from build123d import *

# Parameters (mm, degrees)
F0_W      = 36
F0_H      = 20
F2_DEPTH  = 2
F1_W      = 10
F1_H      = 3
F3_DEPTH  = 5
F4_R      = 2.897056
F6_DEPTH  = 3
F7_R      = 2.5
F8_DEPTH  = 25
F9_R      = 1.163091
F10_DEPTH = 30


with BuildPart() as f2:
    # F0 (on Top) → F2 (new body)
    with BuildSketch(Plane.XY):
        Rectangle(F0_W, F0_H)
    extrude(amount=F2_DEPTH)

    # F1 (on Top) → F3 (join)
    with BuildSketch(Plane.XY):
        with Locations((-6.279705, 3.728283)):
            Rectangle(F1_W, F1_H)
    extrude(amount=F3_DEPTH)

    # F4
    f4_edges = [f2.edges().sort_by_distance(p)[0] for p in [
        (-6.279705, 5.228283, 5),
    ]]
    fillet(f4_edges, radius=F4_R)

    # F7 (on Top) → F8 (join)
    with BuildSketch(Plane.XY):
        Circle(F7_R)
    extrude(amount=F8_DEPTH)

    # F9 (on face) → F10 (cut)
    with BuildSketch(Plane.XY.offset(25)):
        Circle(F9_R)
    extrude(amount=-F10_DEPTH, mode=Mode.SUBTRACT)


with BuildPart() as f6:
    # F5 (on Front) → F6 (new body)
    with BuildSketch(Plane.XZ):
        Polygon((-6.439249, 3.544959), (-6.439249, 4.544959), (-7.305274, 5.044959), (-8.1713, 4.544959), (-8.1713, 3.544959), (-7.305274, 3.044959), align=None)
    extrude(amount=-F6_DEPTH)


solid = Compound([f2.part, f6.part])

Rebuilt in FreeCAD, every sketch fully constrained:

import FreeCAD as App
import Part
import Sketcher
from FreeCAD import Vector
Q = App.Units.Quantity


def edges_at(feature, points):
    """Names of the edges that pass closest to the given points."""
    edges = feature.Shape.Edges
    near = lambda p: min(range(len(edges)), key=lambda i: edges[i].distToShape(Part.Vertex(*p))[0])
    return sorted({f"Edge{near(p) + 1}" for p in points})

doc = App.newDocument("Part")
body = doc.addObject("PartDesign::Body", "Body")

# Sketch on XY plane
sketch1 = body.newObject("Sketcher::SketchObject", "Sketch")
sketch1.AttachmentSupport = (doc.getObject("XY_Plane"), [""])
sketch1.MapMode = "FlatFace"
sketch1.addGeometry([
    Part.LineSegment(Vector(-18, 10, 0), Vector(-18, -10, 0)),
    Part.LineSegment(Vector(-18, -10, 0), Vector(18, -10, 0)),
    Part.LineSegment(Vector(18, -10, 0), Vector(18, 10, 0)),
    Part.LineSegment(Vector(18, 10, 0), Vector(-18, 10, 0)),
], False)
sketch1.addConstraint([
    Sketcher.Constraint("Coincident", 0, 2, 1, 1),
    Sketcher.Constraint("Coincident", 1, 2, 2, 1),
    Sketcher.Constraint("Coincident", 2, 2, 3, 1),
    Sketcher.Constraint("Coincident", 3, 2, 0, 1),
    Sketcher.Constraint("Vertical", 0),
    Sketcher.Constraint("Horizontal", 1),
    Sketcher.Constraint("Vertical", 2),
    Sketcher.Constraint("Horizontal", 3),
    Sketcher.Constraint("Symmetric", 0, 2, 2, 2, -1, 1),
    Sketcher.Constraint("DistanceX", 1, 1, 1, 2, Q("36 mm")),
    Sketcher.Constraint("DistanceY", 0, 2, 0, 1, Q("20 mm")),
])
pad1 = body.newObject("PartDesign::Pad", "Pad")
pad1.Profile = sketch1
pad1.Length = 2

# Sketch on XY plane
sketch2 = body.newObject("Sketcher::SketchObject", "Sketch001")
sketch2.AttachmentSupport = (doc.getObject("XY_Plane"), [""])
sketch2.MapMode = "FlatFace"
sketch2.addGeometry([
    Part.LineSegment(Vector(-11.3, 5.2, 0), Vector(-11.3, 2.2, 0)),
    Part.LineSegment(Vector(-11.3, 2.2, 0), Vector(-1.3, 2.2, 0)),
    Part.LineSegment(Vector(-1.3, 2.2, 0), Vector(-1.3, 5.2, 0)),
    Part.LineSegment(Vector(-1.3, 5.2, 0), Vector(-11.3, 5.2, 0)),
], False)
sketch2.addConstraint([
    Sketcher.Constraint("Coincident", 0, 2, 1, 1),
    Sketcher.Constraint("Coincident", 1, 2, 2, 1),
    Sketcher.Constraint("Coincident", 2, 2, 3, 1),
    Sketcher.Constraint("Coincident", 3, 2, 0, 1),
    Sketcher.Constraint("Vertical", 0),
    Sketcher.Constraint("Horizontal", 1),
    Sketcher.Constraint("Vertical", 2),
    Sketcher.Constraint("Horizontal", 3),
    Sketcher.Constraint("DistanceX", 1, 1, 1, 2, Q("10 mm")),
    Sketcher.Constraint("DistanceY", 0, 2, 0, 1, Q("3 mm")),
    Sketcher.Constraint("DistanceX", 0, 2, -1, 1, Q("11.279705 mm")),
    Sketcher.Constraint("DistanceY", -1, 1, 0, 2, Q("2.228283 mm")),
])
pad2 = body.newObject("PartDesign::Pad", "Pad001")
pad2.Profile = sketch2
pad2.Length = 5
doc.recompute()

fillet = body.newObject("PartDesign::Fillet", "Fillet")
fillet.Base = (pad2, edges_at(pad2, [(-6.28, 5.228, 5)]))
fillet.Radius = 2.897056

# Sketch on XY plane
sketch3 = body.newObject("Sketcher::SketchObject", "Sketch002")
sketch3.AttachmentSupport = (doc.getObject("XY_Plane"), [""])
sketch3.MapMode = "FlatFace"
sketch3.addGeometry(Part.Circle(Vector(0, 0, 0), Vector(0, 0, 1), 2.5), False)
sketch3.addConstraint([
    Sketcher.Constraint("Coincident", 0, 3, -1, 1),
    Sketcher.Constraint("Diameter", 0, Q("5 mm")),
])
pad3 = body.newObject("PartDesign::Pad", "Pad002")
pad3.Profile = sketch3
pad3.Length = 25

# Sketch on XY plane
sketch4 = body.newObject("Sketcher::SketchObject", "Sketch003")
sketch4.AttachmentSupport = (doc.getObject("XY_Plane"), [""])
sketch4.MapMode = "FlatFace"
sketch4.AttachmentOffset = App.Placement(Vector(0, 0, 25), App.Rotation())
sketch4.addGeometry(Part.Circle(Vector(0, 0, 0), Vector(0, 0, 1), 1.2), False)
sketch4.addConstraint([
    Sketcher.Constraint("Coincident", 0, 3, -1, 1),
    Sketcher.Constraint("Diameter", 0, Q("2.326182 mm")),
])
pocket1 = body.newObject("PartDesign::Pocket", "Pocket")
pocket1.Profile = sketch4
pocket1.Length = 30
body2 = doc.addObject("PartDesign::Body", "Body001")

# Sketch on XZ plane
sketch5 = body2.newObject("Sketcher::SketchObject", "Sketch004")
sketch5.AttachmentSupport = (doc.getObject("XZ_Plane001"), [""])
sketch5.MapMode = "FlatFace"
sketch5.addGeometry([
    Part.LineSegment(Vector(-6.4, 3.5, 0), Vector(-6.4, 4.5, 0)),  # 0
    Part.LineSegment(Vector(-6.4, 4.5, 0), Vector(-7.3, 5, 0)),  # 1
    Part.LineSegment(Vector(-7.3, 5, 0), Vector(-8.2, 4.5, 0)),  # 2
    Part.LineSegment(Vector(-8.2, 4.5, 0), Vector(-8.2, 3.5, 0)),  # 3
    Part.LineSegment(Vector(-8.2, 3.5, 0), Vector(-7.3, 3, 0)),  # 4
    Part.LineSegment(Vector(-7.3, 3, 0), Vector(-6.4, 3.5, 0)),  # 5
], False)
sketch5.addConstraint([
    Sketcher.Constraint("Coincident", 0, 2, 1, 1),
    Sketcher.Constraint("Coincident", 1, 2, 2, 1),
    Sketcher.Constraint("Coincident", 2, 2, 3, 1),
    Sketcher.Constraint("Coincident", 3, 2, 4, 1),
    Sketcher.Constraint("Coincident", 4, 2, 5, 1),
    Sketcher.Constraint("Coincident", 5, 2, 0, 1),
    Sketcher.Constraint("Vertical", 0),
    Sketcher.Constraint("Vertical", 3),
    Sketcher.Constraint("Parallel", 1, 4),
    Sketcher.Constraint("Parallel", 2, 5),
    Sketcher.Constraint("Horizontal", 0, 2, 2, 2),
    Sketcher.Constraint("Horizontal", 3, 2, 5, 2),
    Sketcher.Constraint("Vertical", 1, 2, 4, 2),
    Sketcher.Constraint("DistanceY", 0, 1, 0, 2, Q("1 mm")),
    Sketcher.Constraint("Angle", 1, Q("149.999988 deg")),
    Sketcher.Constraint("Distance", 1, Q("1 mm")),
    Sketcher.Constraint("DistanceX", 2, 2, -1, 1, Q("8.1713 mm")),
    Sketcher.Constraint("DistanceY", -1, 1, 0, 2, Q("4.544959 mm")),
])
pad4 = body2.newObject("PartDesign::Pad", "Pad003")
pad4.Profile = sketch5
pad4.Length = 3
pad4.Reversed = True

doc.recompute()
